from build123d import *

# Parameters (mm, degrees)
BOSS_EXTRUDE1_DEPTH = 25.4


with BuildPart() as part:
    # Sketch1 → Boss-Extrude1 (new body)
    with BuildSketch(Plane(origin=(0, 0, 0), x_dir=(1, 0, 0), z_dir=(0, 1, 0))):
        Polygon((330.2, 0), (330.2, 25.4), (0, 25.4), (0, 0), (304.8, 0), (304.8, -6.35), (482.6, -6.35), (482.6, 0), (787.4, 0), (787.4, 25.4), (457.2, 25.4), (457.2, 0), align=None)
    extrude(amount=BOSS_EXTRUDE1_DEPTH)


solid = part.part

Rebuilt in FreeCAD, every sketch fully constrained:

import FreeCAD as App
import Part
import Sketcher
Q = App.Units.Quantity


def add_polygon(sketch, points):
    """Adds a closed chain of lines whose ends are joined by coincident constraints."""
    first, n = sketch.GeometryCount, len(points)
    for a, b in zip(points, points[1:] + points[:1]):
        sketch.addGeometry(Part.LineSegment(App.Vector(*a, 0), App.Vector(*b, 0)), False)
    for i in range(n):
        sketch.addConstraint(Sketcher.Constraint("Coincident", first + i, 2, first + (i + 1) % n, 1))

doc = App.newDocument("Part")
body = doc.addObject("PartDesign::Body", "Body")

# Sketch on XZ plane
sketch1 = body.newObject("Sketcher::SketchObject", "Sketch")
sketch1.AttachmentSupport = (doc.getObject("XZ_Plane"), [""])
sketch1.MapMode = "FlatFace"
add_polygon(sketch1, [(330.2, 0), (330.2, -25.4), (0, -25.4), (0, 0), (304.8, 0), (304.8, 6.35), (482.6, 6.35), (482.6, 0), (787.4, 0), (787.4, -25.4), (457.2, -25.4), (457.2, 0)])  # lines 0-11
sketch1.addConstraint([
    Sketcher.Constraint("Vertical", 0),
    Sketcher.Constraint("Horizontal", 1),
    Sketcher.Constraint("Vertical", 2),
    Sketcher.Constraint("Horizontal", 3),
    Sketcher.Constraint("Vertical", 4),
    Sketcher.Constraint("Horizontal", 5),
    Sketcher.Constraint("Vertical", 6),
    Sketcher.Constraint("Horizontal", 7),
    Sketcher.Constraint("Vertical", 8),
    Sketcher.Constraint("Horizontal", 9),
    Sketcher.Constraint("Vertical", 10),
    Sketcher.Constraint("Horizontal", 11),
    Sketcher.Constraint("Coincident", 2, 2, -1, 1),
    Sketcher.Constraint("PointOnObject", 6, 2, -1),
    Sketcher.Constraint("PointOnObject", 10, 2, -1),
    Sketcher.Constraint("Horizontal", 1, 2, 8, 2),
    Sketcher.Constraint("Equal", 3, 7),
    Sketcher.Constraint("Equal", 1, 9),
    Sketcher.Constraint("DistanceX", 1, 2, 1, 1, Q("13 in")),
    Sketcher.Constraint("DistanceX", 3, 1, 3, 2, Q("12 in")),
    Sketcher.Constraint("DistanceX", 5, 1, 5, 2, Q("7 in")),
    Sketcher.Constraint("DistanceY", 0, 2, 0, 1, Q("1 in")),
    Sketcher.Constraint("DistanceY", 4, 1, 4, 2, Q("0.25 in")),
])
pad1 = body.newObject("PartDesign::Pad", "Pad")
pad1.Profile = sketch1
pad1.Length = Q("1 in")
pad1.Reversed = True

doc.recompute()
